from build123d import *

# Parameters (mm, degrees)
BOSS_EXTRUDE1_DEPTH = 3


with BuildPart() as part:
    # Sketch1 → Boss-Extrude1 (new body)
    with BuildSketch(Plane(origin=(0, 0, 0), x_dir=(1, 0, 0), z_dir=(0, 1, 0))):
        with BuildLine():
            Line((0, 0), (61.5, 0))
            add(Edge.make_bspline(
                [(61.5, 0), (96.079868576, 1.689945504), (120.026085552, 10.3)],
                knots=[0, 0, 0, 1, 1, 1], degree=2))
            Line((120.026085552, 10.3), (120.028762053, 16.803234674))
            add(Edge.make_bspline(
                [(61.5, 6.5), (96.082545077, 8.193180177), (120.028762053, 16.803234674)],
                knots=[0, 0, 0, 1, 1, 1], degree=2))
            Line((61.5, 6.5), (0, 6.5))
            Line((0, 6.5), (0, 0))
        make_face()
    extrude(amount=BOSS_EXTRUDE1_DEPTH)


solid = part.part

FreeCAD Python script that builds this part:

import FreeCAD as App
import Part
import Sketcher

V = App.Vector

doc = App.newDocument("Part")
body = doc.addObject("PartDesign::Body", "Body")

sketch1 = doc.addObject("Sketcher::SketchObject", "Sketch")
body.addObject(sketch1)
sketch1.AttachmentSupport = (doc.XZ_Plane, [""])
sketch1.MapMode = "FlatFace"
sketch1.addGeometry(Part.LineSegment(V(0, 0, 0), V(61.5, 0, 0)), False)
sketch1.addGeometry(Part.BSplineCurve([V(61.5, 0, 0), V(96.079869, -1.689946, 0), V(120.026086, -10.3, 0)], [3, 3], [0, 1], False, 2, [1, 1, 1], False), False)
sketch1.addGeometry(Part.LineSegment(V(120.026086, -10.3, 0), V(120.028762, -16.803235, 0)), False)
sketch1.addGeometry(Part.BSplineCurve([V(61.5, -6.5, 0), V(96.082545, -8.19318, 0), V(120.028762, -16.803235, 0)], [3, 3], [0, 1], False, 2, [1, 1, 1], False), False)
sketch1.addGeometry(Part.LineSegment(V(61.5, -6.5, 0), V(0, -6.5, 0)), False)
sketch1.addGeometry(Part.LineSegment(V(0, -6.5, 0), V(0, 0, 0)), False)
sketch1.addConstraint(Sketcher.Constraint("Block", 1))
sketch1.addConstraint(Sketcher.Constraint("Block", 3))
sketch1.addConstraint(Sketcher.Constraint("Coincident", 0, 2, 1, 1))
sketch1.addConstraint(Sketcher.Constraint("Coincident", 1, 2, 2, 1))
sketch1.addConstraint(Sketcher.Constraint("Coincident", 2, 2, 3, 2))
sketch1.addConstraint(Sketcher.Constraint("Coincident", 3, 1, 4, 1))
sketch1.addConstraint(Sketcher.Constraint("Coincident", 4, 2, 5, 1))
sketch1.addConstraint(Sketcher.Constraint("Coincident", 5, 2, 0, 1))
sketch1.addConstraint(Sketcher.Constraint("Horizontal", 0))
sketch1.addConstraint(Sketcher.Constraint("Horizontal", 4))
sketch1.addConstraint(Sketcher.Constraint("Vertical", 5))
sketch1.addConstraint(Sketcher.Constraint("PointOnObject", 4, 2, -2))
pad1 = doc.addObject("PartDesign::Pad", "Pad")
body.addObject(pad1)
pad1.Profile = sketch1
pad1.Length = 3
pad1.Reversed = True

doc.recompute()
